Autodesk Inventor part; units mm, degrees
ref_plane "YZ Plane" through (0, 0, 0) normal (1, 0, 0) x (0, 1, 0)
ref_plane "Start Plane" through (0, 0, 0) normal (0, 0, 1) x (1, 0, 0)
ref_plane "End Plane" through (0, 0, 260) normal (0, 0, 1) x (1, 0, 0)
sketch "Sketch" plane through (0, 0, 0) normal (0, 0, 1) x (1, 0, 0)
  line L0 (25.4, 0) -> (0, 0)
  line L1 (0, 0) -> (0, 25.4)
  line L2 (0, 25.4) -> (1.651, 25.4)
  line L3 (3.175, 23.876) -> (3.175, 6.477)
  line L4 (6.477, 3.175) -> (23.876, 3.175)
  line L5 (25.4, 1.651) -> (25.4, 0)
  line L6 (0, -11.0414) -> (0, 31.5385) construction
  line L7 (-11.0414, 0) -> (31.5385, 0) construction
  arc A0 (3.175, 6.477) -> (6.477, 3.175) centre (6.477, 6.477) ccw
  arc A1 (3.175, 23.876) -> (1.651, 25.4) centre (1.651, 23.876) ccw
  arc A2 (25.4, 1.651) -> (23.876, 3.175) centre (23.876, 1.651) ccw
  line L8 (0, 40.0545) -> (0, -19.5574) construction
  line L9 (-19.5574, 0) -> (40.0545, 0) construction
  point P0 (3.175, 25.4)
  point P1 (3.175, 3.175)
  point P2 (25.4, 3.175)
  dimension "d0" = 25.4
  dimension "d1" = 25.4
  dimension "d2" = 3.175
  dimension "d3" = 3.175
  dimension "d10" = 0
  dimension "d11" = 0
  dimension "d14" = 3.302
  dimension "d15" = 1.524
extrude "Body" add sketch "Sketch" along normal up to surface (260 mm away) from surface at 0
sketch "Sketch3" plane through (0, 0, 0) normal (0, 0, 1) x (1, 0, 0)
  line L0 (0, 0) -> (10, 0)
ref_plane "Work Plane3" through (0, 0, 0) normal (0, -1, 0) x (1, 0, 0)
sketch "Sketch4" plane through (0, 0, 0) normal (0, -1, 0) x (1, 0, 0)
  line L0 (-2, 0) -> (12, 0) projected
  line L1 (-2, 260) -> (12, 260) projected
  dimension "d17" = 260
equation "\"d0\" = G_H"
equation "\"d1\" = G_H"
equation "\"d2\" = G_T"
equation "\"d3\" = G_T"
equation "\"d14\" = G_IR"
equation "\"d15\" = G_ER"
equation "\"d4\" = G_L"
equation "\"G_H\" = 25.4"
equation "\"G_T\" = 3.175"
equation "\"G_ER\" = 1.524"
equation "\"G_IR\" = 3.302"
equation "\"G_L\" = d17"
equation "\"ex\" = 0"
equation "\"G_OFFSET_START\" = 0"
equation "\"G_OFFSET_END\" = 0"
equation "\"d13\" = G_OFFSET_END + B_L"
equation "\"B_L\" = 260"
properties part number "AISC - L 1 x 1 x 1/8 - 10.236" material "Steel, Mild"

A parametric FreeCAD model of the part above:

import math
import FreeCAD as App
import Part
import Sketcher

V = App.Vector
Q = App.Units.Quantity

doc = App.newDocument("Part")
params = doc.addObject("Spreadsheet::Sheet", "Params")
for row, (alias, value) in enumerate([
    ("sketch1_width", "1 in"),
    ("sketch1_radius", "0.06 in"),
    ("sketch1_radius2", "0.13 in"),
    ("pad1_length", "260 mm"),
], start=1):
    params.set(f"A{row}", alias)
    params.set(f"B{row}", "=" + value)
    params.setAlias(f"B{row}", alias)

body = doc.addObject("PartDesign::Body", "Body")

# Sketch on XY plane
sketch1 = body.newObject("Sketcher::SketchObject", "Sketch")
sketch1.AttachmentSupport = (doc.getObject("XY_Plane"), [""])
sketch1.MapMode = "FlatFace"
sketch1.addGeometry([
    Part.LineSegment(V(0, 0, 0), V(25.4, 0, 0)),  # 0
    Part.LineSegment(V(25.4, 0, 0), V(25.4, 1.7, 0)),  # 1
    Part.ArcOfCircle(Part.Circle(V(23.9, 1.7, 0), V(0, 0, 1), 1.5), math.radians(0), math.radians(90)),  # 2
    Part.LineSegment(V(23.9, 3.2, 0), V(6.5, 3.2, 0)),  # 3
    Part.ArcOfCircle(Part.Circle(V(6.5, 6.5, 0), V(0, 0, 1), 3.3), math.radians(180), math.radians(270)),  # 4
    Part.LineSegment(V(3.2, 6.5, 0), V(3.2, 23.9, 0)),  # 5
    Part.ArcOfCircle(Part.Circle(V(1.7, 23.9, 0), V(0, 0, 1), 1.5), math.radians(0), math.radians(90)),  # 6
    Part.LineSegment(V(1.7, 25.4, 0), V(0, 25.4, 0)),  # 7
    Part.LineSegment(V(0, 25.4, 0), V(0, 0, 0)),  # 8
], False)
sketch1.addConstraint([
    Sketcher.Constraint("Coincident", 0, 2, 1, 1),
    Sketcher.Constraint("Tangent", 1, 2, 2, 1),
    Sketcher.Constraint("Tangent", 2, 2, 3, 1),
    Sketcher.Constraint("Tangent", 3, 2, 4, 2),
    Sketcher.Constraint("Tangent", 4, 1, 5, 1),
    Sketcher.Constraint("Tangent", 5, 2, 6, 1),
    Sketcher.Constraint("Tangent", 6, 2, 7, 1),
    Sketcher.Constraint("Coincident", 7, 2, 8, 1),
    Sketcher.Constraint("Coincident", 8, 2, 0, 1),
    Sketcher.Constraint("Horizontal", 0),
    Sketcher.Constraint("Vertical", 1),
    Sketcher.Constraint("Horizontal", 3),
    Sketcher.Constraint("Vertical", 5),
    Sketcher.Constraint("Horizontal", 7),
    Sketcher.Constraint("Vertical", 8),
    Sketcher.Constraint("Coincident", 8, 2, -1, 1),
    Sketcher.Constraint("Equal", 2, 6),
    Sketcher.Constraint("Equal", 7, 1),
    Sketcher.Constraint("Equal", 3, 5),
    Sketcher.Constraint("DistanceX", 0, 1, 0, 2, Q("1 in")),
    Sketcher.Constraint("Radius", 2, Q("0.06 in")),
    Sketcher.Constraint("Radius", 4, Q("0.13 in")),
    Sketcher.Constraint("DistanceY", -1, 1, 2, 2, Q("0.125 in")),
])
sketch1.setExpression("Constraints[19]", "Params.sketch1_width")
sketch1.setExpression("Constraints[20]", "Params.sketch1_radius")
sketch1.setExpression("Constraints[21]", "Params.sketch1_radius2")
pad1 = body.newObject("PartDesign::Pad", "Pad")
pad1.Profile = sketch1
pad1.setExpression("Length", "Params.pad1_length")

doc.recompute()
